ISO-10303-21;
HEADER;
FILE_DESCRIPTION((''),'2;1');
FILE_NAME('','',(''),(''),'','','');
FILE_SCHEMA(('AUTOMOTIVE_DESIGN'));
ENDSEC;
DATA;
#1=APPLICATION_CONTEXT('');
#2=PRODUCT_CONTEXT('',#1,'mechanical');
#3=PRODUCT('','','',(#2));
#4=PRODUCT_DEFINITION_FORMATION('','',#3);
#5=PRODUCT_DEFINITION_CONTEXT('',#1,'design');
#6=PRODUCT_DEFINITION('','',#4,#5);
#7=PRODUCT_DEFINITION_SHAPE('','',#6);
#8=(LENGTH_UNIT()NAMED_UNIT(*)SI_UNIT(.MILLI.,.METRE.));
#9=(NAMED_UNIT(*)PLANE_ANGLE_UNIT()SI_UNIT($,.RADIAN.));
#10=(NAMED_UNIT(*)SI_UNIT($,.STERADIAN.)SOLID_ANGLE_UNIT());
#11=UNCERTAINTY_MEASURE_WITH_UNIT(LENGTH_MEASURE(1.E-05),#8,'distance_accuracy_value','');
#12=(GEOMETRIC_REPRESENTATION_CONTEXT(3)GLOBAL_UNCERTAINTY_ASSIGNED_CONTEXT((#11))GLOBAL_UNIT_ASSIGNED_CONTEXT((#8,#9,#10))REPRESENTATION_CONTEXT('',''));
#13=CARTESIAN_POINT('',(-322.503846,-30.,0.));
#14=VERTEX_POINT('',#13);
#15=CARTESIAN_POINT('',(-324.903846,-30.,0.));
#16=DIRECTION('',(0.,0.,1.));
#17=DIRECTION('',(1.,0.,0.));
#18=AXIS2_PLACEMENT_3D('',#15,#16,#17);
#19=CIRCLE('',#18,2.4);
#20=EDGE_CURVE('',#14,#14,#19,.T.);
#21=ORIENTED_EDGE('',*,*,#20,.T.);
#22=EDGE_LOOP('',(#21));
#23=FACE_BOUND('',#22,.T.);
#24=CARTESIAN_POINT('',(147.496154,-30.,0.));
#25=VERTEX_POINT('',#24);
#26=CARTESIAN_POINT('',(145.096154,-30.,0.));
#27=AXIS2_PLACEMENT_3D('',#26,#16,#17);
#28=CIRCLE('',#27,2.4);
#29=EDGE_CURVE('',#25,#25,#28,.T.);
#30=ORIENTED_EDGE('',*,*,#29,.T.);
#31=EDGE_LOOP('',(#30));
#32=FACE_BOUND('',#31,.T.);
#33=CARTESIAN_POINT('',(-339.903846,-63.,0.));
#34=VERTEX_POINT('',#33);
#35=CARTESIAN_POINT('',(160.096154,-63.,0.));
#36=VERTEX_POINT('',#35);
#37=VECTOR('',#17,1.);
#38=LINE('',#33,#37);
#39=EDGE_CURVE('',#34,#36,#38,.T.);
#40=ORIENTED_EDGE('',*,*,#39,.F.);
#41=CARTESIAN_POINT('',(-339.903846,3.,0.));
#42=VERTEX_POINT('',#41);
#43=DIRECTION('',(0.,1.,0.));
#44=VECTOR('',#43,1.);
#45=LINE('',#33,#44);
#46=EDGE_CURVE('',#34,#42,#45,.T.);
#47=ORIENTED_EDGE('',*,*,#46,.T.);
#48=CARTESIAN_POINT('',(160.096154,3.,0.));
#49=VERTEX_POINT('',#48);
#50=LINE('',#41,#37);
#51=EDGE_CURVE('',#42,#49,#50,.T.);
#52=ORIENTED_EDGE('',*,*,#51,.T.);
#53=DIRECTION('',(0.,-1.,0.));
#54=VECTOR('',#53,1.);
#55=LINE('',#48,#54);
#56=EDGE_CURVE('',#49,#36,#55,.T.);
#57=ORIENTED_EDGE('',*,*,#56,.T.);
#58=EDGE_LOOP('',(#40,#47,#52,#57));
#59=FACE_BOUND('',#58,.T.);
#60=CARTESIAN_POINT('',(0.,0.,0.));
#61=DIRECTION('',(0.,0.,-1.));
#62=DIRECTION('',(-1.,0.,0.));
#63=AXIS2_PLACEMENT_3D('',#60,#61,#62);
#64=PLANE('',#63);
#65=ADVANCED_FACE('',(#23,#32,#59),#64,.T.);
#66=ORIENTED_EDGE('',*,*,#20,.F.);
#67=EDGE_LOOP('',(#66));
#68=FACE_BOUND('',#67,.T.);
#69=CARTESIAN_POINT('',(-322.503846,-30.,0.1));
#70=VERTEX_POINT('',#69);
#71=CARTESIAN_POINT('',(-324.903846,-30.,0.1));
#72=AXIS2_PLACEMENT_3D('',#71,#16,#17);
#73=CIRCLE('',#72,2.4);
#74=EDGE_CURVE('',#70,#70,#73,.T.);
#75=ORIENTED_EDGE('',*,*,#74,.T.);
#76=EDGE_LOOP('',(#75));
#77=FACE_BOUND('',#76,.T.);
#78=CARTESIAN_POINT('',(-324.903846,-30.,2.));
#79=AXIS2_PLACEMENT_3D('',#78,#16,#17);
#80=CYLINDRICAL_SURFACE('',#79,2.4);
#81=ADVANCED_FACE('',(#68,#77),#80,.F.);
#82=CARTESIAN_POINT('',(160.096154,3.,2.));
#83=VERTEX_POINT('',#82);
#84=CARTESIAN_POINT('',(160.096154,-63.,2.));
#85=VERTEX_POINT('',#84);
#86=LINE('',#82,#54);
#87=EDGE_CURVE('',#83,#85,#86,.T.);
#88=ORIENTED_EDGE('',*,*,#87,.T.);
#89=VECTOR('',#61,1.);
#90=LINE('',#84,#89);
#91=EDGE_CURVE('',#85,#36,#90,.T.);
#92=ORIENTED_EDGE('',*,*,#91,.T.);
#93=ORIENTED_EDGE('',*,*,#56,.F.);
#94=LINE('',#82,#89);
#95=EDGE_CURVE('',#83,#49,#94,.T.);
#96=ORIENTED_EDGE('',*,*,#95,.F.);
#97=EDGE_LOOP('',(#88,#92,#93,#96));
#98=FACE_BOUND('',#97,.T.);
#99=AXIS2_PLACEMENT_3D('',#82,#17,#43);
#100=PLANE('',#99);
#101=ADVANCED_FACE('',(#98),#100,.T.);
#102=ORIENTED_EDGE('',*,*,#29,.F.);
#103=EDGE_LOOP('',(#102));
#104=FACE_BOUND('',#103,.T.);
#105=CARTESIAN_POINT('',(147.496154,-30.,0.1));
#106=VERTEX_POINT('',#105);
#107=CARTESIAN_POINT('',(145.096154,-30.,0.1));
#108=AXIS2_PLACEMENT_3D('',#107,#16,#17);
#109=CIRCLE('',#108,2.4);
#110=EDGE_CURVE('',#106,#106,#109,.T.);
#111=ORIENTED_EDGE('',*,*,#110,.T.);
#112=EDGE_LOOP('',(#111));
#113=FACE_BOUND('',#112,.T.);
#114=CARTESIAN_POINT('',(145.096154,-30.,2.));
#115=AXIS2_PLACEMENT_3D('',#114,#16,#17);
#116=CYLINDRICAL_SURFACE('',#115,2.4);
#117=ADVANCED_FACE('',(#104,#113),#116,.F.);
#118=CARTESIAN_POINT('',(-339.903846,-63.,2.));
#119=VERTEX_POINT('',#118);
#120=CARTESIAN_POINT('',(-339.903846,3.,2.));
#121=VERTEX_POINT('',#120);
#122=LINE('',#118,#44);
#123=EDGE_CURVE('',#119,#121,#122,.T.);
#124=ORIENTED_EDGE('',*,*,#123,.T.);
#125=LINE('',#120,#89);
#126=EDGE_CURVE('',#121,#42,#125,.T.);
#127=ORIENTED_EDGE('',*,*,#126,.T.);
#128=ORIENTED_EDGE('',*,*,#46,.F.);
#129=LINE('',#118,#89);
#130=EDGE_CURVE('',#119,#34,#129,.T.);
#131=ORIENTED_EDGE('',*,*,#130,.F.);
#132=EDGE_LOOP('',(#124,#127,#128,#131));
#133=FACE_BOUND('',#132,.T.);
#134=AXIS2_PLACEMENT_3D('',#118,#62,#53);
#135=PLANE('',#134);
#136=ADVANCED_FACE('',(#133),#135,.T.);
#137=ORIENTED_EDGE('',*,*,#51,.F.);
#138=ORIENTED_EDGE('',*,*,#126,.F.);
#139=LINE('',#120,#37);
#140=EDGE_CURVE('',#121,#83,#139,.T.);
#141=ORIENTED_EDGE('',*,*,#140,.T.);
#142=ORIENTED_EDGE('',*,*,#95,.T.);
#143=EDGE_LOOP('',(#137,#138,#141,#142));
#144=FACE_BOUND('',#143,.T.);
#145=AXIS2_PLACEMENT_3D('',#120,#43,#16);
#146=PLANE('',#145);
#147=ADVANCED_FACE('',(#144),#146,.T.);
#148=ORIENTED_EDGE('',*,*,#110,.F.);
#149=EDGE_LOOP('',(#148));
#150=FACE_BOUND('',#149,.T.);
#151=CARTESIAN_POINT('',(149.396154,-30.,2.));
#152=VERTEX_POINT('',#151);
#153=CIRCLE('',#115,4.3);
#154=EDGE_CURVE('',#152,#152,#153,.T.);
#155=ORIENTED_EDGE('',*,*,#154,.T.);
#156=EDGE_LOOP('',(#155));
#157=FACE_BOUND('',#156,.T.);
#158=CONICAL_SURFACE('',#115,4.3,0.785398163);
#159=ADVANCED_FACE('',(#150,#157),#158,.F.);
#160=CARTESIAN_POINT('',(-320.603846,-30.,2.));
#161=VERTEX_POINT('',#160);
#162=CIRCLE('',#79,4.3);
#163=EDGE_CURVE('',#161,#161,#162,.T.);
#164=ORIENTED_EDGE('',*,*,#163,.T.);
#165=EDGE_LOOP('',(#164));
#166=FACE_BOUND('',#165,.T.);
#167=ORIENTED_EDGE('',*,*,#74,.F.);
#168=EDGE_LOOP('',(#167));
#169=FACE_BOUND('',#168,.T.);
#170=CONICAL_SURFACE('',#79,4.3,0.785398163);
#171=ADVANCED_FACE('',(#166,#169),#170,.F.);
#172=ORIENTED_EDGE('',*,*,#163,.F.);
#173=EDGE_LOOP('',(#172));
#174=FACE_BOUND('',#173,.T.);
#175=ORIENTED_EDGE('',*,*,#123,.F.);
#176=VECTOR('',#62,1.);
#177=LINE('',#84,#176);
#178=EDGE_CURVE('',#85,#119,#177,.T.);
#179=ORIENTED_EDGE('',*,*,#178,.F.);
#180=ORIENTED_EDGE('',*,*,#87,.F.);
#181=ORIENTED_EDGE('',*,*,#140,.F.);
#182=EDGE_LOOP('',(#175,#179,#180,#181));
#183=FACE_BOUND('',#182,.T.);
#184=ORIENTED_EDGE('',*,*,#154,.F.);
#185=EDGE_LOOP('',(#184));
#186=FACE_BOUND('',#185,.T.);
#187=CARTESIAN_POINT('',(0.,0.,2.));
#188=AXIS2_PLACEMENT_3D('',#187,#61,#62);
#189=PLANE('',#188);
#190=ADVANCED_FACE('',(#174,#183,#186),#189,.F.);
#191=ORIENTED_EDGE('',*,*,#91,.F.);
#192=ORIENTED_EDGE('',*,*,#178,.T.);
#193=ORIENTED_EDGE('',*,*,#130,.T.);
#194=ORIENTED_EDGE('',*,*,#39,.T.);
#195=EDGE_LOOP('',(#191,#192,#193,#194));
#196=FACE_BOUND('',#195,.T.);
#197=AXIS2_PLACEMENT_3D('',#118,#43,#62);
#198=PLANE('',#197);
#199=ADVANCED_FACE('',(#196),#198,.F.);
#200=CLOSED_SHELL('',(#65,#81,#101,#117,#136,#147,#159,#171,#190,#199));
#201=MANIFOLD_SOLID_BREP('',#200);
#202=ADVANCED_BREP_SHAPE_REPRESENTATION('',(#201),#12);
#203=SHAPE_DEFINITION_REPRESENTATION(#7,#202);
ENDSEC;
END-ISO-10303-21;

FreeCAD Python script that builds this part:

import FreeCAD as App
import Part
import Sketcher
Q = App.Units.Quantity


def add_polygon(sketch, points):
    """Adds a closed chain of lines whose ends are joined by coincident constraints."""
    first, n = sketch.GeometryCount, len(points)
    for a, b in zip(points, points[1:] + points[:1]):
        sketch.addGeometry(Part.LineSegment(App.Vector(*a, 0), App.Vector(*b, 0)), False)
    for i in range(n):
        sketch.addConstraint(Sketcher.Constraint("Coincident", first + i, 2, first + (i + 1) % n, 1))

doc = App.newDocument("Part")
body = doc.addObject("PartDesign::Body", "Body")

sketch1 = doc.addObject("Sketcher::SketchObject", "Sketch")
body.addObject(sketch1)
sketch1.AttachmentSupport = (doc.XY_Plane, [""])
sketch1.MapMode = "FlatFace"
add_polygon(sketch1, [(160, 3), (-340, 3), (-340, -63), (-310, -63), (-310, -71), (130, -71), (130, -63), (160, -63)])
sketch1.addConstraint([
    Sketcher.Constraint("Horizontal", 0),
    Sketcher.Constraint("Vertical", 1),
    Sketcher.Constraint("Horizontal", 2),
    Sketcher.Constraint("Vertical", 3),
    Sketcher.Constraint("Horizontal", 4),
    Sketcher.Constraint("Vertical", 5),
    Sketcher.Constraint("Horizontal", 6),
    Sketcher.Constraint("Vertical", 7),
    Sketcher.Constraint("Horizontal", 2, 2, 5, 2),
    Sketcher.Constraint("DistanceX", 0, 2, 0, 1, 500.0),
    Sketcher.Constraint("DistanceX", 2, 1, 2, 2, 30.0),
    Sketcher.Constraint("DistanceY", 1, 2, 1, 1, 66.0),
    Sketcher.Constraint("DistanceY", 3, 2, 3, 1, 8.0),
    Sketcher.Constraint("DistanceY", -1, 1, 0, 2, 3.0),
    Sketcher.Constraint("DistanceX", 4, 1, 4, 2, 439.999356),
    Sketcher.Constraint("DistanceX", -1, 1, 4, 2, 130.09551),
])
pad1 = doc.addObject("PartDesign::Pad", "Pad")
body.addObject(pad1)
pad1.Profile = sketch1
pad1.Length = 2

sketch2 = doc.addObject("Sketcher::SketchObject", "Sketch001")
body.addObject(sketch2)
sketch2.AttachmentSupport = (doc.YZ_Plane, [""])
sketch2.MapMode = "FlatFace"
sketch2.AttachmentOffset = App.Placement(App.Vector(0, 0, 145.096154), App.Rotation())
add_polygon(sketch2, [(-30, 0), (-30, 2), (-34.3, 2), (-32.4, 0.1), (-32.4, 0)])
sketch2.addGeometry(Part.LineSegment(App.Vector(-30, 2, 0), App.Vector(-30, 0, 0)), True)
sketch2.addConstraint([
    Sketcher.Constraint("Vertical", 0),
    Sketcher.Constraint("Horizontal", 1),
    Sketcher.Constraint("Vertical", 3),
    Sketcher.Constraint("Horizontal", 4),
    Sketcher.Constraint("Vertical", 5),
    Sketcher.Constraint("Coincident", 5, 1, 0, 2),
    Sketcher.Constraint("PointOnObject", 3, 2, -1),
    Sketcher.Constraint("PointOnObject", 5, 2, -1),
    Sketcher.Constraint("DistanceY", 0, 1, 0, 2, 2.0),
    Sketcher.Constraint("Angle", 2, Q("-45 deg")),
    Sketcher.Constraint("DistanceX", 1, 2, 1, 1, 4.3),
    Sketcher.Constraint("DistanceX", 4, 1, 4, 2, 2.4),
    Sketcher.Constraint("DistanceX", 0, 2, -1, 1, 30.0),
])
groove = doc.addObject("PartDesign::Groove", "Groove")
body.addObject(groove)
groove.Profile = sketch2
groove.ReferenceAxis = (sketch2, ["Axis0"])
groove.Angle = 360
doc.recompute()

linearpattern = doc.addObject("PartDesign::LinearPattern", "LinearPattern")
body.addObject(linearpattern)
linearpattern.Originals = [groove]
linearpattern.Direction = (doc.X_Axis, [""])
linearpattern.Mode = "offset"
linearpattern.Offset = 470
linearpattern.Occurrences = 2
linearpattern.Reversed = True
body.Tip = linearpattern

sketch3 = doc.addObject("Sketcher::SketchObject", "Sketch002")
body.addObject(sketch3)
sketch3.AttachmentSupport = (doc.XY_Plane, [""])
sketch3.MapMode = "FlatFace"
add_polygon(sketch3, [(160, -63), (160, -71), (-340, -71), (-340, -63)])
sketch3.addConstraint([
    Sketcher.Constraint("Vertical", 0),
    Sketcher.Constraint("Horizontal", 1),
    Sketcher.Constraint("Vertical", 2),
    Sketcher.Constraint("Horizontal", 3),
    Sketcher.Constraint("DistanceX", 1, 2, 1, 1, 500.0),
    Sketcher.Constraint("DistanceY", 0, 2, 0, 1, 8.0),
    Sketcher.Constraint("DistanceY", 0, 2, -1, 1, 71.0),
    Sketcher.Constraint("DistanceX", -1, 1, 0, 2, 160.096154),
])
pocket1 = doc.addObject("PartDesign::Pocket", "Pocket")
body.addObject(pocket1)
pocket1.Profile = sketch3
pocket1.Length = 10
pocket1.Reversed = True

doc.recompute()
